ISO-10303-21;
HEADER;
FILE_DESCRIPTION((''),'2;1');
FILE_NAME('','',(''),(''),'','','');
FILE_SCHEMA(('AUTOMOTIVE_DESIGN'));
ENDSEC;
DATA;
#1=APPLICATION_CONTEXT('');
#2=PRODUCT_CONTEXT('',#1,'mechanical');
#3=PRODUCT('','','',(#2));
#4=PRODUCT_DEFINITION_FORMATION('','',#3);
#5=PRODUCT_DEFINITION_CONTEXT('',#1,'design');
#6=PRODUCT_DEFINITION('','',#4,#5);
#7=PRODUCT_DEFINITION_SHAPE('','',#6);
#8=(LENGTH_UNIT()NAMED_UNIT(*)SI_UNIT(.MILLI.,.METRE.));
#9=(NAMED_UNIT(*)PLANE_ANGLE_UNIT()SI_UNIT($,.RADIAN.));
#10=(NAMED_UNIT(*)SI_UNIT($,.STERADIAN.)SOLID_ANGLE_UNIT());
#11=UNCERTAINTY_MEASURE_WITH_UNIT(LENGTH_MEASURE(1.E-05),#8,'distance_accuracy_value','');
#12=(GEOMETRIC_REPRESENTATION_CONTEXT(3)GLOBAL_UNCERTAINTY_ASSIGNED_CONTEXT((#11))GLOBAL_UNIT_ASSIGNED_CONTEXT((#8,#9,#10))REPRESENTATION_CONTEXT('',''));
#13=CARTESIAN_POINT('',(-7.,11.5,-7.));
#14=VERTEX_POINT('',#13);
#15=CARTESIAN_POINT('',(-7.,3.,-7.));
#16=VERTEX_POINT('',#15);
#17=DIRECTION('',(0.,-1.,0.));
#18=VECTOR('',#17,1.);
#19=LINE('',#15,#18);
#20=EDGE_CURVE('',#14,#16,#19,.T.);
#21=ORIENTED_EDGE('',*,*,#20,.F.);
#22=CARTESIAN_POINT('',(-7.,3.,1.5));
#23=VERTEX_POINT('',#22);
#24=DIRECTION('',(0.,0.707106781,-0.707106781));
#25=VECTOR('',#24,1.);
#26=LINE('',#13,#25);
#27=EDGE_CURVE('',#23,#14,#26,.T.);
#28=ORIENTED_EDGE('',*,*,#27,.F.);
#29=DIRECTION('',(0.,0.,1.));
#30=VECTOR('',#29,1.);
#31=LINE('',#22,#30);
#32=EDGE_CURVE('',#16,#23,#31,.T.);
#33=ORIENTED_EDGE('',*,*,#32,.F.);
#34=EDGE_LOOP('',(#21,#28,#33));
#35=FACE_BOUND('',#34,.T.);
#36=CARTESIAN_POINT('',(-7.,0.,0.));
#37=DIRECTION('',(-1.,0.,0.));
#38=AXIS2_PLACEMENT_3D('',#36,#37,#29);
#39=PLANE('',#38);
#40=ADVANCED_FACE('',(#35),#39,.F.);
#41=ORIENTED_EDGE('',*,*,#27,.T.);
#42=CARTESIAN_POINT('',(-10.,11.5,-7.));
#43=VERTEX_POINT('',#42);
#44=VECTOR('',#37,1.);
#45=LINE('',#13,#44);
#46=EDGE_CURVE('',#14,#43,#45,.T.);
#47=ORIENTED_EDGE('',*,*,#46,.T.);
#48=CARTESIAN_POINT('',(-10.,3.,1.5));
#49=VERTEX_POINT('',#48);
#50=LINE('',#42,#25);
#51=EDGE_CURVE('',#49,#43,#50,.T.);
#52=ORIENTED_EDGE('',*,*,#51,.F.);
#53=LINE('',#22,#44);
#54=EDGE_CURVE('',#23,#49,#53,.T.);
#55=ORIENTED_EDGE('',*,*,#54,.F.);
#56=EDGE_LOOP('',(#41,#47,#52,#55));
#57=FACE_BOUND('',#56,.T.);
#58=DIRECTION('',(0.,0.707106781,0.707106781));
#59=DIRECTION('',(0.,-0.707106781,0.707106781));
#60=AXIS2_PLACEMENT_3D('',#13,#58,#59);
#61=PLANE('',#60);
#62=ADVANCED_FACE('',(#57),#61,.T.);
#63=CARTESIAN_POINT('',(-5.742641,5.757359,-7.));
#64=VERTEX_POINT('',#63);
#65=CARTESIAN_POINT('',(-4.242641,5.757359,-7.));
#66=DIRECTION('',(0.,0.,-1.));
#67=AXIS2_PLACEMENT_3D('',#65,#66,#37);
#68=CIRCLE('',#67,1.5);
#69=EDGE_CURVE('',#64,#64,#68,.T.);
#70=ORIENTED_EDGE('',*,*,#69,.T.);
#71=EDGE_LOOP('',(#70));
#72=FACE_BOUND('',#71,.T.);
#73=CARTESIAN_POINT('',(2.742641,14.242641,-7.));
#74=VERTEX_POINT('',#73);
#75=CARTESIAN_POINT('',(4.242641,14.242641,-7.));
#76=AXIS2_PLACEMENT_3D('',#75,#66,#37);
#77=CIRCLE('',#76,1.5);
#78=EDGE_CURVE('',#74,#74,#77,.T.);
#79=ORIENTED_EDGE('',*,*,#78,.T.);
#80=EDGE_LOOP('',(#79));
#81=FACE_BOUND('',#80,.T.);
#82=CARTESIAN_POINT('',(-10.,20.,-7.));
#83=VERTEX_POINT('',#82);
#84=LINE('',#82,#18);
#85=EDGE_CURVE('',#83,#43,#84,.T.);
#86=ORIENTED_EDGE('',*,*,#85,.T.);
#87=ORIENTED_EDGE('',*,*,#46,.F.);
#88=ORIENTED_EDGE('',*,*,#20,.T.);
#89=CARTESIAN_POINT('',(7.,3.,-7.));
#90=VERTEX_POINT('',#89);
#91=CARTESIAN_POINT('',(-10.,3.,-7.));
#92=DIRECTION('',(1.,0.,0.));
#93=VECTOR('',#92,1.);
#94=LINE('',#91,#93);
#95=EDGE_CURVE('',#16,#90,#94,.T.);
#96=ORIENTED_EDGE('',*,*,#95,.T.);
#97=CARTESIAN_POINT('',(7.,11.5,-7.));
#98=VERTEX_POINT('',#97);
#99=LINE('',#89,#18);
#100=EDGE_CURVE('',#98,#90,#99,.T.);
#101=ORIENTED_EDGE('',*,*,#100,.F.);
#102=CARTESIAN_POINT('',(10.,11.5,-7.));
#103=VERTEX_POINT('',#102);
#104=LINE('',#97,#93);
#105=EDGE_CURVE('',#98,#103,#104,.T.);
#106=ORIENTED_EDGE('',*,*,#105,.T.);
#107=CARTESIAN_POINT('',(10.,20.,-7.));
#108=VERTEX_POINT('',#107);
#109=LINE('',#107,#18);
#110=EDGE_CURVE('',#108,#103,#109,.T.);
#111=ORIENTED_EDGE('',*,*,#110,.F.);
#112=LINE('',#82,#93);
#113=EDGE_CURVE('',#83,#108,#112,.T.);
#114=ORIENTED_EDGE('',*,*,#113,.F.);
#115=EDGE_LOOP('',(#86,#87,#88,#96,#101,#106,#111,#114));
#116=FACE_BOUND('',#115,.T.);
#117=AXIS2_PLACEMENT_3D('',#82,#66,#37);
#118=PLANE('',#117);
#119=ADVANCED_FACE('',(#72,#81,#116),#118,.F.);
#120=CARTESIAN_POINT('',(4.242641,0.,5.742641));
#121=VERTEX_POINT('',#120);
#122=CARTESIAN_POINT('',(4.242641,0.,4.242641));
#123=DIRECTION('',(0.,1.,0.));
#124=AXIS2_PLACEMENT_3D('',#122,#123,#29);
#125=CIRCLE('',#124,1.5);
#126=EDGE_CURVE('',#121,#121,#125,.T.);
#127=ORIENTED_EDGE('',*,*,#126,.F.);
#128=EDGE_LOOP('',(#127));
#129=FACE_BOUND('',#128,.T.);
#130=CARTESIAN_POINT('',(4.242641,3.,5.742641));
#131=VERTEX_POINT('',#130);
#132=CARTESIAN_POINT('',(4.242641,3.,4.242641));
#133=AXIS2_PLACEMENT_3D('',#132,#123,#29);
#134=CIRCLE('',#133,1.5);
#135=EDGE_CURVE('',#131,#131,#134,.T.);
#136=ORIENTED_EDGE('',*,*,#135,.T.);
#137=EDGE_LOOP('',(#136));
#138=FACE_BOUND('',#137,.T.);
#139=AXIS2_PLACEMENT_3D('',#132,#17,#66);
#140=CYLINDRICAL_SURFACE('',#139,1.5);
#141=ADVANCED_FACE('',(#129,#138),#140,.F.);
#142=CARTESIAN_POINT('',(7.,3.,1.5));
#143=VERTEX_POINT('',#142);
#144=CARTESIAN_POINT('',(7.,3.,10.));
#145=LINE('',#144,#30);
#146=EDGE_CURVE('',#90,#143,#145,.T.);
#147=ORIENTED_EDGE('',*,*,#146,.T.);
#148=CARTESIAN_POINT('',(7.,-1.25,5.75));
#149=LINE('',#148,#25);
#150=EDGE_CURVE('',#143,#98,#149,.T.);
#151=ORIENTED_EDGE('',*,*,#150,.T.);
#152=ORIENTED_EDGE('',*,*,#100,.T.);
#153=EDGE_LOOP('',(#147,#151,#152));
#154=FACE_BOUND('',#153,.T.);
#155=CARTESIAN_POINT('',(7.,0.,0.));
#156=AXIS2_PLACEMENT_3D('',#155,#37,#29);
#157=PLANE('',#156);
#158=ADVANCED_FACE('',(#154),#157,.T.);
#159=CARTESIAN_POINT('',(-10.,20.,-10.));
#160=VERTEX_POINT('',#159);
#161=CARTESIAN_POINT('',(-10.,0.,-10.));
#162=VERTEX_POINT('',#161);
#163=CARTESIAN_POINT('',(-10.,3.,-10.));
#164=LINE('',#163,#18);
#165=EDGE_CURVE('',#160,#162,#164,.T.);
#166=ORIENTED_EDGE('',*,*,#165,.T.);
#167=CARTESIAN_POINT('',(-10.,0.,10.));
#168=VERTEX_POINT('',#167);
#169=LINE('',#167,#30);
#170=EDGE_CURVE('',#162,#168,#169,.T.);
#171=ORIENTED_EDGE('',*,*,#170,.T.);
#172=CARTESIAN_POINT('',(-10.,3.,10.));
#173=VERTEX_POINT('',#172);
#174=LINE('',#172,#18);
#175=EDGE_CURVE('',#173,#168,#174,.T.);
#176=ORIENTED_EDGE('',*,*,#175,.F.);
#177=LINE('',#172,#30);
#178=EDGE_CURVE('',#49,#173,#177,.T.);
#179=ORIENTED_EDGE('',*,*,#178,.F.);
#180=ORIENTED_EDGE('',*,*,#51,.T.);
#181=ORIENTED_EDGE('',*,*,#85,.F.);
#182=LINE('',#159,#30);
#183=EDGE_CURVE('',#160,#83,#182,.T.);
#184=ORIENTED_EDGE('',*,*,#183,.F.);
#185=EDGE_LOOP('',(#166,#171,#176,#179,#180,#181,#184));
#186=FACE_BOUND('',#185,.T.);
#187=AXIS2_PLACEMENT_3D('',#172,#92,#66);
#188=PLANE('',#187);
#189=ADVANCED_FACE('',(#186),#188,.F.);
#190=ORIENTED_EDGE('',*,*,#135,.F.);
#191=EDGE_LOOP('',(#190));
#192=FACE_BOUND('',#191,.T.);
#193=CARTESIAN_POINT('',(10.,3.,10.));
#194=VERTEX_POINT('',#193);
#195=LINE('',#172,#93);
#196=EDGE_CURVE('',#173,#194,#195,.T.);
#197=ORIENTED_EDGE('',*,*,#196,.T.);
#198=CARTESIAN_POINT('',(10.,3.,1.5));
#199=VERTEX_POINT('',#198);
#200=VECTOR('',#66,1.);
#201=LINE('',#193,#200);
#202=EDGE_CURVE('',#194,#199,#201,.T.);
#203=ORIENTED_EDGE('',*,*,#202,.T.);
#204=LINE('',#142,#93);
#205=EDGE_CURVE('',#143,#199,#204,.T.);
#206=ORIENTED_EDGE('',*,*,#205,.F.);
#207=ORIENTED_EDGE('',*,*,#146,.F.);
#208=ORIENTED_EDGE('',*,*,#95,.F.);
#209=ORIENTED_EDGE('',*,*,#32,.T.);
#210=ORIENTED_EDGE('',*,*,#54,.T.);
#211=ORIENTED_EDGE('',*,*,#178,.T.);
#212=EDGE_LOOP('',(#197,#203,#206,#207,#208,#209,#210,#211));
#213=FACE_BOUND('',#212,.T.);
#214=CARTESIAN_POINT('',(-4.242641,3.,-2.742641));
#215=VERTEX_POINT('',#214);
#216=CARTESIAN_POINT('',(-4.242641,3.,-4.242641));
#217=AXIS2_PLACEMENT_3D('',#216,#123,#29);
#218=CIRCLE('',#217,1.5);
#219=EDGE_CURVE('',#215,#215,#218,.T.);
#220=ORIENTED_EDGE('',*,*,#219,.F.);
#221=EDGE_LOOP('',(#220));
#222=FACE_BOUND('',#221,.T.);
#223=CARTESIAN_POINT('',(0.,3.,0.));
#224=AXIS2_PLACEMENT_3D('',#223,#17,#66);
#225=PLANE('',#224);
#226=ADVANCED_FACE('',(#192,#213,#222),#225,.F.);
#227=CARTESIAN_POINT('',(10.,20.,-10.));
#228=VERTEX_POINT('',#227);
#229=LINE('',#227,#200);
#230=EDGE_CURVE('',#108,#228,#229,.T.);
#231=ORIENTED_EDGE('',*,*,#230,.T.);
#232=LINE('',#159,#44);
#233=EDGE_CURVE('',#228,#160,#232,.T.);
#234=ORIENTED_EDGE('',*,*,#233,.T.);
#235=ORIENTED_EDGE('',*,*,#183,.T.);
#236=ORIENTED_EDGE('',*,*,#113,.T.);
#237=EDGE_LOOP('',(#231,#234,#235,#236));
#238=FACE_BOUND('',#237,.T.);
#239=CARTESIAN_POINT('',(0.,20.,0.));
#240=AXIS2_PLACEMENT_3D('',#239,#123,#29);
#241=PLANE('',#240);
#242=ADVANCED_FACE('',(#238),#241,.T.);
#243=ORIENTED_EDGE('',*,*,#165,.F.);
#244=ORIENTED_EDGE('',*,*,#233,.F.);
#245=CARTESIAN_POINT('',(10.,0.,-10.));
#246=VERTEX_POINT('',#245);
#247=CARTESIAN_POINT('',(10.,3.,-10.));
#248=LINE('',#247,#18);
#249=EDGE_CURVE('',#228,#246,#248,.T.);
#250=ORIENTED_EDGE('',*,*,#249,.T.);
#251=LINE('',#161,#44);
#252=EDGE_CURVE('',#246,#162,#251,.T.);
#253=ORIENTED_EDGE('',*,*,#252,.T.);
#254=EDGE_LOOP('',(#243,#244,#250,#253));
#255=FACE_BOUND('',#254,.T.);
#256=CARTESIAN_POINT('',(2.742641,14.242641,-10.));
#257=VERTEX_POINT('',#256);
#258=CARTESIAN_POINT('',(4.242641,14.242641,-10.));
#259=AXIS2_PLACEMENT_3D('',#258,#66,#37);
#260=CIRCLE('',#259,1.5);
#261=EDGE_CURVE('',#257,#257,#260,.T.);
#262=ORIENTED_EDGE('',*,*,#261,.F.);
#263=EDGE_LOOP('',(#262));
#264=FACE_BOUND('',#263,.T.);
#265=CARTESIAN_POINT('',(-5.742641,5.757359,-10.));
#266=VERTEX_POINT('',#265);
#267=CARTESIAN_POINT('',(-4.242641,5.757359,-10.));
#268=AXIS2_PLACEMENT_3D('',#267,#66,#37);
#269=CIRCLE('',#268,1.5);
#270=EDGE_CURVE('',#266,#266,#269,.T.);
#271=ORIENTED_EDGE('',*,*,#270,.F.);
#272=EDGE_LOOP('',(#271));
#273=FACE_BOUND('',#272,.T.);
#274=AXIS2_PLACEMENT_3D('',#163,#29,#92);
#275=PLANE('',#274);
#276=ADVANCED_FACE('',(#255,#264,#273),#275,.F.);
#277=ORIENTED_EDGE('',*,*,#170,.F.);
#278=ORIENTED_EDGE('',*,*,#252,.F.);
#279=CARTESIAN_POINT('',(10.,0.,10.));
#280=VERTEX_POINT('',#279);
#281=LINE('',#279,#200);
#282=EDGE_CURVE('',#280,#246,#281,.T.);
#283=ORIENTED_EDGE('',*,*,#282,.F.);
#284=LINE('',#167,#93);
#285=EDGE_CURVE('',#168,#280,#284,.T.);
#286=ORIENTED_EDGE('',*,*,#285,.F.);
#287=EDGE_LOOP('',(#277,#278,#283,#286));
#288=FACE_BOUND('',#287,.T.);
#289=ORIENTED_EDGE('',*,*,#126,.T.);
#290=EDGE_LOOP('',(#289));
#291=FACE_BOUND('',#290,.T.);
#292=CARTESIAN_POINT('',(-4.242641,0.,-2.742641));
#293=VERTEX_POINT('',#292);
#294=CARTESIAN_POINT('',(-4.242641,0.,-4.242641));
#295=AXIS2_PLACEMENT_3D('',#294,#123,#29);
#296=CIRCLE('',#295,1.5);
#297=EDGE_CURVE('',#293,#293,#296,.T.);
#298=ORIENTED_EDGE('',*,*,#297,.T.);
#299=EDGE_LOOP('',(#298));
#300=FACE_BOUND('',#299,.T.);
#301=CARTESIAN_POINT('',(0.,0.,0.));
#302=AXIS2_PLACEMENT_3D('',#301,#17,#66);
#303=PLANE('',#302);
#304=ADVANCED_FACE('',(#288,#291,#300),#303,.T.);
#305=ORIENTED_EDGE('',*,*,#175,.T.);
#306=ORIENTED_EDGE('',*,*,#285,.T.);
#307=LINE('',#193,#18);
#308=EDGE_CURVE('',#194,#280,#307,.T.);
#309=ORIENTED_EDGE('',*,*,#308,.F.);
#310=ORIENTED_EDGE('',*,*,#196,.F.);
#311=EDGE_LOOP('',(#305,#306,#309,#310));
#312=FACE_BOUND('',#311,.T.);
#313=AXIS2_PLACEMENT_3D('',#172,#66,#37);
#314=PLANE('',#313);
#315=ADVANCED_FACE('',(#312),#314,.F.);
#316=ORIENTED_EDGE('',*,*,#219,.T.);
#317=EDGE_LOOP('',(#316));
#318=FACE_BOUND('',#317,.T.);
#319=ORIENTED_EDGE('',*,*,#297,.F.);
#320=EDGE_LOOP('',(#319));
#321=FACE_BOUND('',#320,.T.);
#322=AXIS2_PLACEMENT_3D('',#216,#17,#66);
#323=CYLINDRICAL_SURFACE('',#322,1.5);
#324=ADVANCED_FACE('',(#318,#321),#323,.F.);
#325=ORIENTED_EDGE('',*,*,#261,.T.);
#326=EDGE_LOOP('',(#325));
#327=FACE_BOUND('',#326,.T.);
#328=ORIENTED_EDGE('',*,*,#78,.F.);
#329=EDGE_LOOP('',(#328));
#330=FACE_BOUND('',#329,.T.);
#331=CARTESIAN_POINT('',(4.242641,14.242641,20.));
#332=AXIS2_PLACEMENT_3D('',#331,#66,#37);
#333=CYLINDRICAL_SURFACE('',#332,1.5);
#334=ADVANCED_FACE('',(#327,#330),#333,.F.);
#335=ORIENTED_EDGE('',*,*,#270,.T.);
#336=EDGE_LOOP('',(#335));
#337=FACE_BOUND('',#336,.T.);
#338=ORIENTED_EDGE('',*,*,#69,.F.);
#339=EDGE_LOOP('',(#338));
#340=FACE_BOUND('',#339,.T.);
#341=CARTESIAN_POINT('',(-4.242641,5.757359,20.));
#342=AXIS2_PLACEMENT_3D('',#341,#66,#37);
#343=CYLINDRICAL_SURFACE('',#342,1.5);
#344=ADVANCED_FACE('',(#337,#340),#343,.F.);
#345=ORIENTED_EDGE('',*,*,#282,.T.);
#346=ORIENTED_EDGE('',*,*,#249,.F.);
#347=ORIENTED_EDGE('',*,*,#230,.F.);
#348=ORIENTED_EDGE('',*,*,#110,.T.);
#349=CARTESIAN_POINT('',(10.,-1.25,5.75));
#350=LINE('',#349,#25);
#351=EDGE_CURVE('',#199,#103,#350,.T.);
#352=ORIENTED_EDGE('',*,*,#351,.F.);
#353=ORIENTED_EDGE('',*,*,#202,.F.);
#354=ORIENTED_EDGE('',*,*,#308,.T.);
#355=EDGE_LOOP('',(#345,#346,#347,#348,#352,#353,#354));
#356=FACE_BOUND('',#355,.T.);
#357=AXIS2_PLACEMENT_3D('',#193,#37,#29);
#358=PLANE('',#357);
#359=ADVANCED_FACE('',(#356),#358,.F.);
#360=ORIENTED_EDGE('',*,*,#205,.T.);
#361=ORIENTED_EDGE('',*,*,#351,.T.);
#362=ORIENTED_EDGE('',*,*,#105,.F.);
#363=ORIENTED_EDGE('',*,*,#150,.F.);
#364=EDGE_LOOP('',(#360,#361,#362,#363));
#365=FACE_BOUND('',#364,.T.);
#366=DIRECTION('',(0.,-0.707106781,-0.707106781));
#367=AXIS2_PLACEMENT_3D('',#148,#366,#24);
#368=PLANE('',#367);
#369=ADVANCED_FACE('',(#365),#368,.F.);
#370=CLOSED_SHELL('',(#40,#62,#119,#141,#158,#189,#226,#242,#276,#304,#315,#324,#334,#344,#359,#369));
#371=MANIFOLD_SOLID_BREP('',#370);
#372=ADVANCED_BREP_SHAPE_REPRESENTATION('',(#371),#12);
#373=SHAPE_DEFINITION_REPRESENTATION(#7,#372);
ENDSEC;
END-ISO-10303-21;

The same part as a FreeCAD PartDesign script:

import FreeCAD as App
import Part
import Sketcher
from FreeCAD import Vector


def add_polygon(sketch, points):
    """Adds a closed chain of lines whose ends are joined by coincident constraints."""
    first, n = sketch.GeometryCount, len(points)
    for a, b in zip(points, points[1:] + points[:1]):
        sketch.addGeometry(Part.LineSegment(App.Vector(*a, 0), App.Vector(*b, 0)), False)
    for i in range(n):
        sketch.addConstraint(Sketcher.Constraint("Coincident", first + i, 2, first + (i + 1) % n, 1))

doc = App.newDocument("Part")
params = doc.addObject("Spreadsheet::Sheet", "Params")
for row, (alias, value) in enumerate([
    ("sketch1_diameter", "3 mm"),
    ("sketch1_width", "20 mm"),
    ("pad1_length", "3 mm"),
    ("sketch2_width", "20 mm"),
    ("sketch2_height", "3 mm"),
    ("pad2_length", "17 mm"),
    ("sketch3_diameter", "3 mm"),
    ("pocket1_length", "30 mm"),
    ("sketch4_width", "8.5 mm"),
    ("pad3_length", "3 mm"),
    ("sketch5_width", "8.5 mm"),
    ("pad4_length", "3 mm"),
], start=1):
    params.set(f"A{row}", alias)
    params.set(f"B{row}", "=" + value)
    params.setAlias(f"B{row}", alias)

body = doc.addObject("PartDesign::Body", "Body")

# Sketch on XZ plane
sketch1 = body.newObject("Sketcher::SketchObject", "Sketch")
sketch1.AttachmentSupport = (doc.getObject("XZ_Plane"), [""])
sketch1.MapMode = "FlatFace"
add_polygon(sketch1, [(-10, -10), (-10, 10), (10, 10), (10, -10)])  # lines 0-3
sketch1.addGeometry(Part.Circle(Vector(4.2, 4.2, 0), Vector(0, 0, 1), 1.5), False)  # 4
sketch1.addGeometry(Part.Circle(Vector(-4.2, -4.2, 0), Vector(0, 0, 1), 1.5), False)  # 5
sketch1.addConstraint([
    Sketcher.Constraint("Vertical", 0),
    Sketcher.Constraint("Horizontal", 1),
    Sketcher.Constraint("Vertical", 2),
    Sketcher.Constraint("Horizontal", 3),
    Sketcher.Constraint("Equal", 4, 5),
    Sketcher.Constraint("Symmetric", 4, 3, 5, 3, -1, 1),
    Sketcher.Constraint("Symmetric", 0, 2, 2, 2, -1, 1),
    Sketcher.Constraint("Equal", 3, 0),
    Sketcher.Constraint("Diameter", 4, 3.0),
    Sketcher.Constraint("DistanceX", 1, 1, 1, 2, 20.0),
    Sketcher.Constraint("DistanceX", -1, 1, 4, 3, 4.242641),
    Sketcher.Constraint("DistanceY", -1, 1, 4, 3, 4.242641),
])
sketch1.setExpression("Constraints[12]", "Params.sketch1_diameter")
sketch1.setExpression("Constraints[13]", "Params.sketch1_width")
pad1 = body.newObject("PartDesign::Pad", "Pad")
pad1.Profile = sketch1
pad1.setExpression("Length", "Params.pad1_length")
pad1.Reversed = True

# Sketch on XZ plane
sketch2 = body.newObject("Sketcher::SketchObject", "Sketch001")
sketch2.AttachmentSupport = (doc.getObject("XZ_Plane"), [""])
sketch2.MapMode = "FlatFace"
sketch2.AttachmentOffset = App.Placement(Vector(0, 0, -3), App.Rotation())
add_polygon(sketch2, [(-10, -10), (-10, -7), (10, -7), (10, -10)])  # lines 0-3
sketch2.addConstraint([
    Sketcher.Constraint("Vertical", 0),
    Sketcher.Constraint("Horizontal", 1),
    Sketcher.Constraint("Vertical", 2),
    Sketcher.Constraint("Horizontal", 3),
    Sketcher.Constraint("DistanceX", 1, 1, 1, 2, 20.0),
    Sketcher.Constraint("DistanceY", 0, 1, 0, 2, 3.0),
    Sketcher.Constraint("DistanceX", 0, 2, -1, 1, 10.0),
    Sketcher.Constraint("DistanceY", 0, 2, -1, 1, 7.0),
])
sketch2.setExpression("Constraints[8]", "Params.sketch2_width")
sketch2.setExpression("Constraints[9]", "Params.sketch2_height")
pad2 = body.newObject("PartDesign::Pad", "Pad001")
pad2.Profile = sketch2
pad2.setExpression("Length", "Params.pad2_length")
pad2.Reversed = True

# Sketch on XY plane
sketch3 = body.newObject("Sketcher::SketchObject", "Sketch002")
sketch3.AttachmentSupport = (doc.getObject("XY_Plane"), [""])
sketch3.MapMode = "FlatFace"
sketch3.AttachmentOffset = App.Placement(Vector(0, 0, -10), App.Rotation())
sketch3.addGeometry([
    Part.Circle(Vector(4.2, 14.2, 0), Vector(0, 0, 1), 1.5),
    Part.Circle(Vector(-4.2, 5.8, 0), Vector(0, 0, 1), 1.5),
], False)
sketch3.addConstraint([
    Sketcher.Constraint("Equal", 0, 1),
    Sketcher.Constraint("Diameter", 0, 3.0),
    Sketcher.Constraint("DistanceX", -1, 1, 0, 3, 4.242641),
    Sketcher.Constraint("DistanceY", -1, 1, 0, 3, 14.242641),
    Sketcher.Constraint("DistanceX", 1, 3, -1, 1, 4.242641),
    Sketcher.Constraint("DistanceY", -1, 1, 1, 3, 5.757359),
])
sketch3.setExpression("Constraints[1]", "Params.sketch3_diameter")
pocket1 = body.newObject("PartDesign::Pocket", "Pocket")
pocket1.Profile = sketch3
pocket1.setExpression("Length", "Params.pocket1_length")
pocket1.Reversed = True

# Sketch on YZ plane
sketch4 = body.newObject("Sketcher::SketchObject", "Sketch003")
sketch4.AttachmentSupport = (doc.getObject("YZ_Plane"), [""])
sketch4.MapMode = "FlatFace"
sketch4.AttachmentOffset = App.Placement(Vector(0, 0, -10), App.Rotation())
add_polygon(sketch4, [(3, 2), (12, -7), (3, -7)])  # lines 0-2
sketch4.addConstraint([
    Sketcher.Constraint("Horizontal", 1),
    Sketcher.Constraint("Vertical", 2),
    Sketcher.Constraint("Equal", 1, 2),
    Sketcher.Constraint("DistanceX", 1, 2, 1, 1, 8.5),
    Sketcher.Constraint("DistanceY", 0, 2, -1, 1, 7.0),
    Sketcher.Constraint("DistanceX", -1, 1, 1, 2, 3.0),
])
sketch4.setExpression("Constraints[6]", "Params.sketch4_width")
pad3 = body.newObject("PartDesign::Pad", "Pad002")
pad3.Profile = sketch4
pad3.setExpression("Length", "Params.pad3_length")

# Sketch on YZ plane
sketch5 = body.newObject("Sketcher::SketchObject", "Sketch004")
sketch5.AttachmentSupport = (doc.getObject("YZ_Plane"), [""])
sketch5.MapMode = "FlatFace"
sketch5.AttachmentOffset = App.Placement(Vector(0, 0, 10), App.Rotation())
add_polygon(sketch5, [(3, 2), (12, -7), (3, -7)])  # lines 0-2
sketch5.addConstraint([
    Sketcher.Constraint("Horizontal", 1),
    Sketcher.Constraint("Vertical", 2),
    Sketcher.Constraint("Equal", 1, 2),
    Sketcher.Constraint("DistanceX", 1, 2, 1, 1, 8.5),
    Sketcher.Constraint("DistanceY", 0, 2, -1, 1, 7.0),
    Sketcher.Constraint("DistanceX", -1, 1, 1, 2, 3.0),
])
sketch5.setExpression("Constraints[6]", "Params.sketch5_width")
pad4 = body.newObject("PartDesign::Pad", "Pad003")
pad4.Profile = sketch5
pad4.setExpression("Length", "Params.pad4_length")
pad4.Reversed = True

doc.recompute()
